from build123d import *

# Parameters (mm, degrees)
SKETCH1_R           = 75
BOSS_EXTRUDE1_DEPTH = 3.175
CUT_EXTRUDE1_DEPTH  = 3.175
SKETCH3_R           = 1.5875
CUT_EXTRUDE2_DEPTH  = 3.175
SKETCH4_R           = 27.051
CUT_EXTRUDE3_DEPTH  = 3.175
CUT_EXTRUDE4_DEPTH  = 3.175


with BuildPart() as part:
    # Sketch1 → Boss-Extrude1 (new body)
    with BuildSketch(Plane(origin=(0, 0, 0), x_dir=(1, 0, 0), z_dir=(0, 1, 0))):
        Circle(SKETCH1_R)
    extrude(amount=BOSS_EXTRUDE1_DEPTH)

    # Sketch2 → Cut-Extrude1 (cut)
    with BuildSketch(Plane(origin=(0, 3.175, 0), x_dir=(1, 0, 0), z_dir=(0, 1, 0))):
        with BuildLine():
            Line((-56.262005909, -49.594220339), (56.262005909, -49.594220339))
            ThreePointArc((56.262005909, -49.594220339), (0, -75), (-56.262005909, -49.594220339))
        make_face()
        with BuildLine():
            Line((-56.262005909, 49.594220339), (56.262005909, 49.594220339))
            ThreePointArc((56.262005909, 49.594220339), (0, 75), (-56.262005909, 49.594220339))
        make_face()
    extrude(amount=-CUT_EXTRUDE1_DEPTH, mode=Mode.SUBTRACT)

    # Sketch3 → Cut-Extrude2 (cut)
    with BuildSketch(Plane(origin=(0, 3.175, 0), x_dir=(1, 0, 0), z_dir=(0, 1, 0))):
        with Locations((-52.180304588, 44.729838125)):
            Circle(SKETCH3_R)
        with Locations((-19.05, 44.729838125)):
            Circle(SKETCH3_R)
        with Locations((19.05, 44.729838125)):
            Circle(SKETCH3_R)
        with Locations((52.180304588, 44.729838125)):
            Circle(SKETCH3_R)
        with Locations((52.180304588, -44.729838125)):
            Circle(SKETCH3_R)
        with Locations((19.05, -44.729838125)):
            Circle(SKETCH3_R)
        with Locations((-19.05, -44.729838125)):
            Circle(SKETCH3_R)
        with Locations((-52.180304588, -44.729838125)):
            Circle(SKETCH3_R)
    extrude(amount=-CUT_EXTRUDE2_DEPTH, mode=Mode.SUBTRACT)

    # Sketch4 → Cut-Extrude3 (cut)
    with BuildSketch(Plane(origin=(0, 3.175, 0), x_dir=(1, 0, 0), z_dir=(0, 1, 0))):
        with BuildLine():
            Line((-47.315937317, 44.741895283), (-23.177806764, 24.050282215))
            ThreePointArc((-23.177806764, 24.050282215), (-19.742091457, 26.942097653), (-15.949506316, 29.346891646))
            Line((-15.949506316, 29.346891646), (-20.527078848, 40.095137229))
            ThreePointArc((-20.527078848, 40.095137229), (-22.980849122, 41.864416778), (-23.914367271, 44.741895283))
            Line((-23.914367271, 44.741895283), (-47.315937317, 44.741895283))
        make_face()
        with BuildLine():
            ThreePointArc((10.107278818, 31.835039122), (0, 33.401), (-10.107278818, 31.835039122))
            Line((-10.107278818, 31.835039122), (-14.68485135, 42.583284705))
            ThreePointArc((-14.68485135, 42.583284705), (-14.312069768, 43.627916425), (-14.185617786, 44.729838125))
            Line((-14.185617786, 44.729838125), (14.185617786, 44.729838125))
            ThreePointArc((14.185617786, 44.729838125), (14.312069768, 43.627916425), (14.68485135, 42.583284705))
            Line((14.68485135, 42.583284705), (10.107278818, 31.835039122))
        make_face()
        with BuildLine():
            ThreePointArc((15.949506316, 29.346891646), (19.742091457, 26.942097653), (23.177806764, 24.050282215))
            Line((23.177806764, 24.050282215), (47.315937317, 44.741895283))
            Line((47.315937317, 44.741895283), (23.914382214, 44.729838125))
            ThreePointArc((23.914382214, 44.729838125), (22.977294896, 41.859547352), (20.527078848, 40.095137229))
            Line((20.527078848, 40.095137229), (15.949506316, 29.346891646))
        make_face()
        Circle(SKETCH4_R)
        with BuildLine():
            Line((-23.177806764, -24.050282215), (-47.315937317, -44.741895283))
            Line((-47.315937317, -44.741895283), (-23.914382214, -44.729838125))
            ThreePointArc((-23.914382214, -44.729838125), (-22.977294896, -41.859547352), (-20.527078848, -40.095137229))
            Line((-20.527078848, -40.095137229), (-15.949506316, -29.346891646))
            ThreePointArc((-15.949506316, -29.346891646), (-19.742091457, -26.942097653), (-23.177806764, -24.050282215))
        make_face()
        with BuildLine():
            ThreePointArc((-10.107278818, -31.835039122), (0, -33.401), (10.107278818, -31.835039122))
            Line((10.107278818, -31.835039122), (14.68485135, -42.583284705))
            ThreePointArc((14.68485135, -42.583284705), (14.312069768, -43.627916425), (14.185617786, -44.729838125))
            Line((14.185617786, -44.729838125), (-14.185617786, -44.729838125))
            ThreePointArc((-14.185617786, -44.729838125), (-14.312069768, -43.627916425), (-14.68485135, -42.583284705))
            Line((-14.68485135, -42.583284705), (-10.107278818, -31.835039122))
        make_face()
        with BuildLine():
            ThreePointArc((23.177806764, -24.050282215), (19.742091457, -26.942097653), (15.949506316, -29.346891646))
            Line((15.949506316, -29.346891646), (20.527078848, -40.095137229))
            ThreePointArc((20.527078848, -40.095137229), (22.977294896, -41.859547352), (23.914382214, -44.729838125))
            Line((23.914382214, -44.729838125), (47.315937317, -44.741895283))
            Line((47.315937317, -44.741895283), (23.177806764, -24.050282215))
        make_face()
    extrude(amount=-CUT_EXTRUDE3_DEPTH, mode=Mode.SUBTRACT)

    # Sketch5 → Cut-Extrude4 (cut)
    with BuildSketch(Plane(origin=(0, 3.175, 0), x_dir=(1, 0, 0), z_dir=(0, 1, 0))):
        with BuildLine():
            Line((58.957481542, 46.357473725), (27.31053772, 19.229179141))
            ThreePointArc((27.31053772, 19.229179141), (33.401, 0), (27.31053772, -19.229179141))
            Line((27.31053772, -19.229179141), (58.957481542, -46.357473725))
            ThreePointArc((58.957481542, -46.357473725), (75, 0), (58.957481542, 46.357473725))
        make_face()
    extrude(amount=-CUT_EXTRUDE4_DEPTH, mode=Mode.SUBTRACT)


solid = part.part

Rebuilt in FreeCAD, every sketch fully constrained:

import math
import FreeCAD as App
import Part
import Sketcher
Q = App.Units.Quantity

doc = App.newDocument("Part")
body = doc.addObject("PartDesign::Body", "Body")

sketch1 = body.newObject("Sketcher::SketchObject", "Sketch")
sketch1.AttachmentSupport = (doc.getObject("XZ_Plane"), [""])
sketch1.MapMode = "FlatFace"
sketch1.addGeometry(Part.Circle(App.Vector(0, 0, 0), App.Vector(0, 0, 1), 75), False)
sketch1.addConstraint([
    Sketcher.Constraint("Coincident", 0, 3, -1, 1),
    Sketcher.Constraint("Diameter", 0, Q("150 mm")),
])
pad1 = body.newObject("PartDesign::Pad", "Pad")
pad1.Profile = sketch1
pad1.Length = Q("0.125 in")
pad1.Reversed = True

sketch2 = body.newObject("Sketcher::SketchObject", "Sketch001")
sketch2.AttachmentSupport = (doc.getObject("XZ_Plane"), [""])
sketch2.MapMode = "FlatFace"
sketch2.AttachmentOffset = App.Placement(App.Vector(0, 0, -0.125 * 25.4), App.Rotation())
sketch2.addGeometry([
    Part.LineSegment(App.Vector(56.262006, 49.59422, 0), App.Vector(-56.262006, 49.59422, 0)),
    Part.ArcOfCircle(Part.Circle(App.Vector(0, 0, 0), App.Vector(0, 0, 1), 75), math.radians(41.395754), math.radians(138.604246)),
    Part.LineSegment(App.Vector(-56.262006, -49.59422, 0), App.Vector(56.262006, -49.59422, 0)),
    Part.ArcOfCircle(Part.Circle(App.Vector(0, 0, 0), App.Vector(0, 0, 1), 75), math.radians(-138.604246), math.radians(-41.395754)),
], False)
sketch2.addConstraint([
    Sketcher.Constraint("Coincident", 0, 1, 1, 1),
    Sketcher.Constraint("Coincident", 1, 2, 0, 2),
    Sketcher.Constraint("Coincident", 2, 1, 3, 1),
    Sketcher.Constraint("Coincident", 3, 2, 2, 2),
    Sketcher.Constraint("Horizontal", 0),
    Sketcher.Constraint("Horizontal", 2),
    Sketcher.Constraint("Coincident", 1, 3, -1, 1),
    Sketcher.Constraint("Coincident", 3, 3, -1, 1),
    Sketcher.Constraint("Equal", 1, 3),
    Sketcher.Constraint("Vertical", 1, 2, 2, 1),
    Sketcher.Constraint("Radius", 1, Q("75 mm")),
    Sketcher.Constraint("DistanceX", 0, 2, 0, 1, Q("112.524012 mm")),
])
pocket1 = body.newObject("PartDesign::Pocket", "Pocket")
pocket1.Profile = sketch2
pocket1.Length = Q("0.125 in")
pocket1.Reversed = True

sketch3 = body.newObject("Sketcher::SketchObject", "Sketch002")
sketch3.AttachmentSupport = (doc.getObject("XZ_Plane"), [""])
sketch3.MapMode = "FlatFace"
sketch3.AttachmentOffset = App.Placement(App.Vector(0, 0, -0.125 * 25.4), App.Rotation())
sketch3.addGeometry([
    Part.Circle(App.Vector(-52.180305, -44.729838, 0), App.Vector(0, 0, 1), 1.5875),
    Part.Circle(App.Vector(-19.05, -44.729838, 0), App.Vector(0, 0, 1), 1.5875),
    Part.Circle(App.Vector(19.05, -44.729838, 0), App.Vector(0, 0, 1), 1.5875),
    Part.Circle(App.Vector(52.180305, -44.729838, 0), App.Vector(0, 0, 1), 1.5875),
    Part.Circle(App.Vector(52.180305, 44.729838, 0), App.Vector(0, 0, 1), 1.5875),
    Part.Circle(App.Vector(19.05, 44.729838, 0), App.Vector(0, 0, 1), 1.5875),
    Part.Circle(App.Vector(-19.05, 44.729838, 0), App.Vector(0, 0, 1), 1.5875),
    Part.Circle(App.Vector(-52.180305, 44.729838, 0), App.Vector(0, 0, 1), 1.5875),
], False)
sketch3.addConstraint([
    Sketcher.Constraint("Equal", 0, 1),
    Sketcher.Constraint("Equal", 1, 2),
    Sketcher.Constraint("Equal", 2, 3),
    Sketcher.Constraint("Equal", 3, 4),
    Sketcher.Constraint("Equal", 4, 5),
    Sketcher.Constraint("Equal", 5, 6),
    Sketcher.Constraint("Equal", 6, 7),
    Sketcher.Constraint("Symmetric", 0, 3, 4, 3, -1, 1),
    Sketcher.Constraint("Symmetric", 1, 3, 5, 3, -1, 1),
    Sketcher.Constraint("Symmetric", 2, 3, 6, 3, -1, 1),
    Sketcher.Constraint("Symmetric", 3, 3, 7, 3, -1, 1),
    Sketcher.Constraint("Symmetric", 1, 3, 2, 3, -2),
    Sketcher.Constraint("Symmetric", 0, 3, 3, 3, -2),
    Sketcher.Constraint("Horizontal", 0, 3, 1, 3),
    Sketcher.Constraint("Diameter", 0, Q("0.125 in")),
    Sketcher.Constraint("DistanceX", 1, 3, 2, 3, Q("1.5 in")),
    Sketcher.Constraint("DistanceY", 0, 3, -1, 1, Q("44.729838 mm")),
    Sketcher.Constraint("DistanceX", 0, 3, 3, 3, Q("104.360609 mm")),
])
pocket2 = body.newObject("PartDesign::Pocket", "Pocket001")
pocket2.Profile = sketch3
pocket2.Length = Q("0.125 in")
pocket2.Reversed = True

sketch4 = body.newObject("Sketcher::SketchObject", "Sketch003")
sketch4.AttachmentSupport = (doc.getObject("XZ_Plane"), [""])
sketch4.MapMode = "FlatFace"
sketch4.AttachmentOffset = App.Placement(App.Vector(0, 0, -0.125 * 25.4), App.Rotation())
sketch4.addGeometry([
    Part.LineSegment(App.Vector(-47.315937, -44.741895, 0), App.Vector(-23.177807, -24.050282, 0)),
    Part.ArcOfCircle(Part.Circle(App.Vector(0, 0, 0), App.Vector(0, 0, 1), 33.401), math.radians(-133.941658), math.radians(-118.523282)),
    Part.LineSegment(App.Vector(-15.949506, -29.346892, 0), App.Vector(-20.527079, -40.095137, 0)),
    Part.ArcOfCircle(Part.Circle(App.Vector(-19.05, -44.729838, 0), App.Vector(0, 0, 1), 4.864382), math.radians(107.677077), math.radians(180.142017)),
    Part.LineSegment(App.Vector(-23.914367, -44.741895, 0), App.Vector(-47.315937, -44.741895, 0)),
    Part.ArcOfCircle(Part.Circle(App.Vector(0, 0, 0), App.Vector(0, 0, 1), 33.401), math.radians(-107.614077), math.radians(-72.385923)),
    Part.LineSegment(App.Vector(10.107279, -31.835039, 0), App.Vector(14.684851, -42.583285, 0)),
    Part.ArcOfCircle(Part.Circle(App.Vector(19.05, -44.729838, 0), App.Vector(0, 0, 1), 4.864382), math.radians(153.814437), math.radians(180)),
    Part.LineSegment(App.Vector(14.185618, -44.729838, 0), App.Vector(-14.185618, -44.729838, 0)),
    Part.ArcOfCircle(Part.Circle(App.Vector(-19.05, -44.729838, 0), App.Vector(0, 0, 1), 4.864382), math.radians(0), math.radians(26.185563)),
    Part.LineSegment(App.Vector(-14.684851, -42.583285, 0), App.Vector(-10.107279, -31.835039, 0)),
    Part.ArcOfCircle(Part.Circle(App.Vector(0, 0, 0), App.Vector(0, 0, 1), 33.401), math.radians(-61.476718), math.radians(-46.058342)),
    Part.LineSegment(App.Vector(23.177807, -24.050282, 0), App.Vector(47.315937, -44.741895, 0)),
    Part.LineSegment(App.Vector(47.315937, -44.741895, 0), App.Vector(23.914382, -44.729838, 0)),
    Part.ArcOfCircle(Part.Circle(App.Vector(19.05, -44.729838, 0), App.Vector(0, 0, 1), 4.864382), math.radians(0), math.radians(72.322923)),
    Part.LineSegment(App.Vector(20.527079, -40.095137, 0), App.Vector(15.949506, -29.346892, 0)),
    Part.Circle(App.Vector(0, 0, 0), App.Vector(0, 0, 1), 27.051),
    Part.LineSegment(App.Vector(-23.177807, 24.050282, 0), App.Vector(-47.315937, 44.741895, 0)),
    Part.LineSegment(App.Vector(-47.315937, 44.741895, 0), App.Vector(-23.914382, 44.729838, 0)),
    Part.ArcOfCircle(Part.Circle(App.Vector(-19.05, 44.729838, 0), App.Vector(0, 0, 1), 4.864382), math.radians(180), math.radians(252.322923)),
    Part.LineSegment(App.Vector(-20.527079, 40.095137, 0), App.Vector(-15.949506, 29.346892, 0)),
    Part.ArcOfCircle(Part.Circle(App.Vector(0, 0, 0), App.Vector(0, 0, 1), 33.401), math.radians(118.523282), math.radians(133.941658)),
    Part.ArcOfCircle(Part.Circle(App.Vector(0, 0, 0), App.Vector(0, 0, 1), 33.401), math.radians(72.385923), math.radians(107.614077)),
    Part.LineSegment(App.Vector(-10.107279, 31.835039, 0), App.Vector(-14.684851, 42.583285, 0)),
    Part.ArcOfCircle(Part.Circle(App.Vector(-19.05, 44.729838, 0), App.Vector(0, 0, 1), 4.864382), math.radians(-26.185563), math.radians(0)),
    Part.LineSegment(App.Vector(-14.185618, 44.729838, 0), App.Vector(14.185618, 44.729838, 0)),
    Part.ArcOfCircle(Part.Circle(App.Vector(19.05, 44.729838, 0), App.Vector(0, 0, 1), 4.864382), math.radians(-180), math.radians(-153.814437)),
    Part.LineSegment(App.Vector(14.684851, 42.583285, 0), App.Vector(10.107279, 31.835039, 0)),
    Part.ArcOfCircle(Part.Circle(App.Vector(0, 0, 0), App.Vector(0, 0, 1), 33.401), math.radians(46.058342), math.radians(61.476718)),
    Part.LineSegment(App.Vector(15.949506, 29.346892, 0), App.Vector(20.527079, 40.095137, 0)),
    Part.ArcOfCircle(Part.Circle(App.Vector(19.05, 44.729838, 0), App.Vector(0, 0, 1), 4.864382), math.radians(-72.322923), math.radians(0)),
    Part.LineSegment(App.Vector(23.914382, 44.729838, 0), App.Vector(47.315937, 44.741895, 0)),
    Part.LineSegment(App.Vector(47.315937, 44.741895, 0), App.Vector(23.177807, 24.050282, 0)),
], False)
sketch4.addConstraint([
    Sketcher.Constraint("Coincident", 0, 2, 1, 1),
    Sketcher.Constraint("Coincident", 1, 2, 2, 1),
    Sketcher.Constraint("Coincident", 2, 2, 3, 1),
    Sketcher.Constraint("Coincident", 3, 2, 4, 1),
    Sketcher.Constraint("Coincident", 4, 2, 0, 1),
    Sketcher.Constraint("Coincident", 5, 2, 6, 1),
    Sketcher.Constraint("Coincident", 6, 2, 7, 1),
    Sketcher.Constraint("Coincident", 7, 2, 8, 1),
    Sketcher.Constraint("Coincident", 8, 2, 9, 1),
    Sketcher.Constraint("Coincident", 9, 2, 10, 1),
    Sketcher.Constraint("Coincident", 10, 2, 5, 1),
    Sketcher.Constraint("Coincident", 11, 2, 12, 1),
    Sketcher.Constraint("Coincident", 12, 2, 13, 1),
    Sketcher.Constraint("Coincident", 13, 2, 14, 1),
    Sketcher.Constraint("Coincident", 14, 2, 15, 1),
    Sketcher.Constraint("Coincident", 15, 2, 11, 1),
    Sketcher.Constraint("Coincident", 17, 2, 18, 1),
    Sketcher.Constraint("Coincident", 18, 2, 19, 1),
    Sketcher.Constraint("Coincident", 19, 2, 20, 1),
    Sketcher.Constraint("Coincident", 20, 2, 21, 1),
    Sketcher.Constraint("Coincident", 21, 2, 17, 1),
    Sketcher.Constraint("Coincident", 22, 2, 23, 1),
    Sketcher.Constraint("Coincident", 23, 2, 24, 1),
    Sketcher.Constraint("Coincident", 24, 2, 25, 1),
    Sketcher.Constraint("Coincident", 25, 2, 26, 1),
    Sketcher.Constraint("Coincident", 26, 2, 27, 1),
    Sketcher.Constraint("Coincident", 27, 2, 22, 1),
    Sketcher.Constraint("Coincident", 28, 2, 29, 1),
    Sketcher.Constraint("Coincident", 29, 2, 30, 1),
    Sketcher.Constraint("Coincident", 30, 2, 31, 1),
    Sketcher.Constraint("Coincident", 31, 2, 32, 1),
    Sketcher.Constraint("Coincident", 32, 2, 28, 1),
    Sketcher.Constraint("Horizontal", 4),
    Sketcher.Constraint("Horizontal", 8),
    Sketcher.Constraint("Horizontal", 25),
    Sketcher.Constraint("Coincident", 1, 3, -1, 1),
    Sketcher.Constraint("Coincident", 5, 3, -1, 1),
    Sketcher.Constraint("Coincident", 11, 3, -1, 1),
    Sketcher.Constraint("Coincident", 16, 3, -1, 1),
    Sketcher.Constraint("Coincident", 21, 3, -1, 1),
    Sketcher.Constraint("Coincident", 22, 3, -1, 1),
    Sketcher.Constraint("Coincident", 28, 3, -1, 1),
    Sketcher.Constraint("Coincident", 9, 3, 3, 3),
    Sketcher.Constraint("Coincident", 14, 3, 7, 3),
    Sketcher.Constraint("Coincident", 24, 3, 19, 3),
    Sketcher.Constraint("Coincident", 30, 3, 26, 3),
    Sketcher.Constraint("Equal", 1, 5),
    Sketcher.Constraint("Equal", 3, 7),
    Sketcher.Constraint("Equal", 7, 9),
    Sketcher.Constraint("Equal", 5, 11),
    Sketcher.Constraint("Equal", 9, 14),
    Sketcher.Constraint("Equal", 14, 19),
    Sketcher.Constraint("Equal", 11, 21),
    Sketcher.Constraint("Equal", 21, 22),
    Sketcher.Constraint("Equal", 19, 24),
    Sketcher.Constraint("Equal", 24, 26),
    Sketcher.Constraint("Equal", 22, 28),
    Sketcher.Constraint("Equal", 26, 30),
    Sketcher.Constraint("Symmetric", 7, 3, 19, 3, -1, 1),
    Sketcher.Constraint("Symmetric", 3, 3, 26, 3, -1, 1),
    Sketcher.Constraint("Symmetric", 12, 2, 17, 2, -1, 1),
    Sketcher.Constraint("Symmetric", 4, 2, 31, 2, -1, 1),
    Sketcher.Constraint("Symmetric", 3, 3, 7, 3, -2),
    Sketcher.Constraint("Symmetric", 4, 2, 12, 2, -2),
    Sketcher.Constraint("Parallel", 2, 10),
    Sketcher.Constraint("Parallel", 6, 15),
    Sketcher.Constraint("Parallel", 12, 17),
    Sketcher.Constraint("Parallel", 13, 18),
    Sketcher.Constraint("Parallel", 15, 20),
    Sketcher.Constraint("Parallel", 20, 23),
    Sketcher.Constraint("Parallel", 10, 27),
    Sketcher.Constraint("Parallel", 27, 29),
    Sketcher.Constraint("Parallel", 0, 32),
    Sketcher.Constraint("Horizontal", 14, 3, 7, 2),
    Sketcher.Constraint("Horizontal", 6, 2, 9, 2),
    Sketcher.Constraint("Horizontal", 5, 2, 10, 2),
    Sketcher.Constraint("Horizontal", 0, 2, 11, 2),
    Sketcher.Constraint("Horizontal", 8, 2, 13, 2),
    Sketcher.Constraint("Horizontal", 2, 2, 14, 2),
    Sketcher.Constraint("Horizontal", 18, 2, 24, 2),
    Sketcher.Constraint("Horizontal", 23, 2, 26, 2),
    Sketcher.Constraint("Horizontal", 20, 2, 28, 2),
    Sketcher.Constraint("Horizontal", 25, 2, 30, 2),
    Sketcher.Constraint("Vertical", 2, 2, 19, 2),
    Sketcher.Constraint("Vertical", 10, 2, 22, 2),
    Sketcher.Constraint("Equal", 2, 6),
    Sketcher.Constraint("Diameter", 16, Q("2.13 in")),
    Sketcher.Constraint("Radius", 1, Q("1.315 in")),
    Sketcher.Constraint("DistanceX", 3, 3, 7, 3, Q("1.5 in")),
    Sketcher.Constraint("Radius", 3, Q("4.864382 mm")),
    Sketcher.Constraint("DistanceX", 4, 2, 4, 1, Q("23.40157 mm")),
    Sketcher.Constraint("DistanceX", 0, 2, 1, 2, Q("7.2283 mm")),
    Sketcher.Constraint("DistanceY", 9, 3, 2, 2, Q("4.634701 mm")),
    Sketcher.Constraint("DistanceY", 14, 3, 5, 2, Q("12.894799 mm")),
    Sketcher.Constraint("DistanceX", 2, 2, 10, 2, Q("10.4198 mm")),
    Sketcher.Constraint("Distance", 0, Q("31.792958 mm")),
])
pocket3 = body.newObject("PartDesign::Pocket", "Pocket002")
pocket3.Profile = sketch4
pocket3.Length = Q("0.125 in")
pocket3.Reversed = True

sketch5 = body.newObject("Sketcher::SketchObject", "Sketch004")
sketch5.AttachmentSupport = (doc.getObject("XZ_Plane"), [""])
sketch5.MapMode = "FlatFace"
sketch5.AttachmentOffset = App.Placement(App.Vector(0, 0, -0.125 * 25.4), App.Rotation())
sketch5.addGeometry([
    Part.LineSegment(App.Vector(58.957482, -46.357474, 0), App.Vector(27.310538, -19.229179, 0)),
    Part.ArcOfCircle(Part.Circle(App.Vector(0, 0, 0), App.Vector(0, 0, 1), 33.401), math.radians(-35.149137), math.radians(35.149137)),
    Part.LineSegment(App.Vector(27.310538, 19.229179, 0), App.Vector(58.957482, 46.357474, 0)),
    Part.ArcOfCircle(Part.Circle(App.Vector(0, 0, 0), App.Vector(0, 0, 1), 75), math.radians(-38.177493), math.radians(38.177493)),
], False)
sketch5.addConstraint([
    Sketcher.Constraint("Coincident", 0, 2, 1, 1),
    Sketcher.Constraint("Coincident", 1, 2, 2, 1),
    Sketcher.Constraint("Coincident", 2, 2, 3, 2),
    Sketcher.Constraint("Coincident", 3, 1, 0, 1),
    Sketcher.Constraint("Coincident", 1, 3, -1, 1),
    Sketcher.Constraint("Coincident", 3, 3, -1, 1),
    Sketcher.Constraint("Vertical", 0, 2, 1, 2),
    Sketcher.Constraint("Vertical", 2, 2, 3, 1),
    Sketcher.Constraint("Radius", 1, Q("1.315 in")),
    Sketcher.Constraint("Radius", 3, Q("75 mm")),
    Sketcher.Constraint("Distance", 0, Q("41.683011 mm")),
    Sketcher.Constraint("DistanceY", 0, 2, -1, 1, Q("19.229179 mm")),
])
pocket4 = body.newObject("PartDesign::Pocket", "Pocket003")
pocket4.Profile = sketch5
pocket4.Length = Q("0.125 in")
pocket4.Reversed = True

doc.recompute()
